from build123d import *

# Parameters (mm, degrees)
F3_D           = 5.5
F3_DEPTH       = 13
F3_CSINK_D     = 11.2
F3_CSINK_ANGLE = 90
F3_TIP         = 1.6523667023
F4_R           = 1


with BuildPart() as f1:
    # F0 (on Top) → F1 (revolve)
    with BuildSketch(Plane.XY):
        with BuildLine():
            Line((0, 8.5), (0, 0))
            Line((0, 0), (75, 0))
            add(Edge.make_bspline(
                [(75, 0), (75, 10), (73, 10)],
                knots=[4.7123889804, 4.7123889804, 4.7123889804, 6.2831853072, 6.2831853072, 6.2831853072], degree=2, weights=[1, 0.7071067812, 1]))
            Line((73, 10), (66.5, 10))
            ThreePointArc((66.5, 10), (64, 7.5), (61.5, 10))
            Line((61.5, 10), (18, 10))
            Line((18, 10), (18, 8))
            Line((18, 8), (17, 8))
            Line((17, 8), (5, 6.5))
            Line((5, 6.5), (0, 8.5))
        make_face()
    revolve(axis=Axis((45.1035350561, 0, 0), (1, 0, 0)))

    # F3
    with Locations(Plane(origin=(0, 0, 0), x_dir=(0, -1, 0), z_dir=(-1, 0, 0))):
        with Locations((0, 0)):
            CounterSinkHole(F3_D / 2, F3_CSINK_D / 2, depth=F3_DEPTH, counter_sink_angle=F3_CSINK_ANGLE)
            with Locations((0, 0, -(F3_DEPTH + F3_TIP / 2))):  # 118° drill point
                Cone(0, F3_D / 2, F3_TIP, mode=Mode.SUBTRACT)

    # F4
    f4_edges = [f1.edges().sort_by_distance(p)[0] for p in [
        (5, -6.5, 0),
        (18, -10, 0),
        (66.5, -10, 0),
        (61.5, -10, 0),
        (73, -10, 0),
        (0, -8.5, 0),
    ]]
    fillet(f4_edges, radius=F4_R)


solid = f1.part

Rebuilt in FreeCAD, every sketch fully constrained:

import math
import FreeCAD as App
import Part
import Sketcher
Q = App.Units.Quantity


def edges_at(feature, points):
    """Names of the edges that pass closest to the given points."""
    edges = feature.Shape.Edges
    near = lambda p: min(range(len(edges)), key=lambda i: edges[i].distToShape(Part.Vertex(*p))[0])
    return sorted({f"Edge{near(p) + 1}" for p in points})

doc = App.newDocument("Part")
body = doc.addObject("PartDesign::Body", "Body")

sketch1 = body.newObject("Sketcher::SketchObject", "Sketch")
sketch1.AttachmentSupport = (doc.getObject("XY_Plane"), [""])
sketch1.MapMode = "FlatFace"
sketch1.addGeometry(Part.LineSegment(App.Vector(0, 8.5, 0), App.Vector(0, 0, 0)), False)
sketch1.addGeometry(Part.LineSegment(App.Vector(0, 0, 0), App.Vector(75, 0, 0)), False)
sketch1.addGeometry(Part.BSplineCurve([App.Vector(75, 0, 0), App.Vector(75, 10, 0), App.Vector(73, 10, 0)], [3, 3], [4.71238898, 6.283185307], False, 2, [1, 0.707106781, 1], False), False)
sketch1.addGeometry(Part.LineSegment(App.Vector(73, 10, 0), App.Vector(66.5, 10, 0)), False)
sketch1.addGeometry(Part.ArcOfCircle(Part.Circle(App.Vector(64, 10, 0), App.Vector(0, 0, 1), 2.5), math.radians(180), math.radians(360)), False)
sketch1.addGeometry(Part.LineSegment(App.Vector(61.5, 10, 0), App.Vector(18, 10, 0)), False)
sketch1.addGeometry(Part.LineSegment(App.Vector(18, 10, 0), App.Vector(18, 8, 0)), False)
sketch1.addGeometry(Part.LineSegment(App.Vector(18, 8, 0), App.Vector(17, 8, 0)), False)
sketch1.addGeometry(Part.LineSegment(App.Vector(17, 8, 0), App.Vector(5, 6.5, 0)), False)
sketch1.addGeometry(Part.LineSegment(App.Vector(5, 6.5, 0), App.Vector(0, 8.5, 0)), False)
sketch1.addConstraint(Sketcher.Constraint("Block", 2))
sketch1.addConstraint(Sketcher.Constraint("Coincident", 0, 2, 1, 1))
sketch1.addConstraint(Sketcher.Constraint("Coincident", 1, 2, 2, 1))
sketch1.addConstraint(Sketcher.Constraint("Coincident", 2, 2, 3, 1))
sketch1.addConstraint(Sketcher.Constraint("Coincident", 3, 2, 4, 2))
sketch1.addConstraint(Sketcher.Constraint("Coincident", 4, 1, 5, 1))
sketch1.addConstraint(Sketcher.Constraint("Coincident", 5, 2, 6, 1))
sketch1.addConstraint(Sketcher.Constraint("Coincident", 6, 2, 7, 1))
sketch1.addConstraint(Sketcher.Constraint("Coincident", 7, 2, 8, 1))
sketch1.addConstraint(Sketcher.Constraint("Coincident", 8, 2, 9, 1))
sketch1.addConstraint(Sketcher.Constraint("Coincident", 9, 2, 0, 1))
sketch1.addConstraint(Sketcher.Constraint("Vertical", 0))
sketch1.addConstraint(Sketcher.Constraint("Horizontal", 1))
sketch1.addConstraint(Sketcher.Constraint("Horizontal", 3))
sketch1.addConstraint(Sketcher.Constraint("Horizontal", 5))
sketch1.addConstraint(Sketcher.Constraint("Vertical", 6))
sketch1.addConstraint(Sketcher.Constraint("Horizontal", 7))
sketch1.addConstraint(Sketcher.Constraint("PointOnObject", 9, 2, -2))
sketch1.addConstraint(Sketcher.Constraint("Horizontal", 4, 3, 3, 2))
sketch1.addConstraint(Sketcher.Constraint("Horizontal", 3, 2, 4, 1))
sketch1.addConstraint(Sketcher.Constraint("Radius", 4, Q("2.5 mm")))
sketch1.addConstraint(Sketcher.Constraint("DistanceX", 7, 2, 7, 1, Q("1 mm")))
sketch1.addConstraint(Sketcher.Constraint("DistanceY", 6, 2, 6, 1, Q("2 mm")))
sketch1.addConstraint(Sketcher.Constraint("DistanceX", 3, 2, 3, 1, Q("6.5 mm")))
sketch1.addConstraint(Sketcher.Constraint("DistanceX", 5, 2, 5, 1, Q("43.5 mm")))
sketch1.addConstraint(Sketcher.Constraint("DistanceY", 0, 2, 0, 1, Q("8.5 mm")))
sketch1.addConstraint(Sketcher.Constraint("DistanceX", -1, 1, 8, 2, Q("5 mm")))
sketch1.addConstraint(Sketcher.Constraint("DistanceY", 8, 2, 9, 2, Q("2 mm")))
revolution = body.newObject("PartDesign::Revolution", "Revolution")
revolution.Profile = sketch1
revolution.ReferenceAxis = (sketch1, ["H_Axis"])
revolution.Angle = 360

sketch2 = body.newObject("Sketcher::SketchObject", "Sketch001")
sketch2.AttachmentSupport = (doc.getObject("YZ_Plane"), [""])
sketch2.MapMode = "FlatFace"
sketch2.addGeometry(Part.Circle(App.Vector(0, 0, 0), App.Vector(0, 0, 1), 2.8), False)
sketch2.addConstraint(Sketcher.Constraint("Coincident", 0, 3, -1, 1))
sketch2.addConstraint(Sketcher.Constraint("Diameter", 0, Q("5.5 mm")))
doc.recompute()
hole = body.newObject("PartDesign::Hole", "Hole")
hole.Profile = sketch2
hole.ThreadType = "None"
hole.Diameter = 5.5
hole.DepthType = "Dimension"
hole.Depth = 13
hole.DrillPoint = "Angled"
hole.DrillPointAngle = 118
hole.HoleCutType = "Countersink"
hole.HoleCutDiameter = 11.2
hole.HoleCutCountersinkAngle = 90
hole.Reversed = True
doc.recompute()

fillet = body.newObject("PartDesign::Fillet", "Fillet")
fillet.Base = (hole, edges_at(hole, [
    (5, -6.5, 0),
    (18, -10, 0),
    (66.5, -10, 0),
    (61.5, -10, 0),
    (73, -10, 0),
    (0, -8.5, 0),
]))
fillet.Radius = 1

doc.recompute()
